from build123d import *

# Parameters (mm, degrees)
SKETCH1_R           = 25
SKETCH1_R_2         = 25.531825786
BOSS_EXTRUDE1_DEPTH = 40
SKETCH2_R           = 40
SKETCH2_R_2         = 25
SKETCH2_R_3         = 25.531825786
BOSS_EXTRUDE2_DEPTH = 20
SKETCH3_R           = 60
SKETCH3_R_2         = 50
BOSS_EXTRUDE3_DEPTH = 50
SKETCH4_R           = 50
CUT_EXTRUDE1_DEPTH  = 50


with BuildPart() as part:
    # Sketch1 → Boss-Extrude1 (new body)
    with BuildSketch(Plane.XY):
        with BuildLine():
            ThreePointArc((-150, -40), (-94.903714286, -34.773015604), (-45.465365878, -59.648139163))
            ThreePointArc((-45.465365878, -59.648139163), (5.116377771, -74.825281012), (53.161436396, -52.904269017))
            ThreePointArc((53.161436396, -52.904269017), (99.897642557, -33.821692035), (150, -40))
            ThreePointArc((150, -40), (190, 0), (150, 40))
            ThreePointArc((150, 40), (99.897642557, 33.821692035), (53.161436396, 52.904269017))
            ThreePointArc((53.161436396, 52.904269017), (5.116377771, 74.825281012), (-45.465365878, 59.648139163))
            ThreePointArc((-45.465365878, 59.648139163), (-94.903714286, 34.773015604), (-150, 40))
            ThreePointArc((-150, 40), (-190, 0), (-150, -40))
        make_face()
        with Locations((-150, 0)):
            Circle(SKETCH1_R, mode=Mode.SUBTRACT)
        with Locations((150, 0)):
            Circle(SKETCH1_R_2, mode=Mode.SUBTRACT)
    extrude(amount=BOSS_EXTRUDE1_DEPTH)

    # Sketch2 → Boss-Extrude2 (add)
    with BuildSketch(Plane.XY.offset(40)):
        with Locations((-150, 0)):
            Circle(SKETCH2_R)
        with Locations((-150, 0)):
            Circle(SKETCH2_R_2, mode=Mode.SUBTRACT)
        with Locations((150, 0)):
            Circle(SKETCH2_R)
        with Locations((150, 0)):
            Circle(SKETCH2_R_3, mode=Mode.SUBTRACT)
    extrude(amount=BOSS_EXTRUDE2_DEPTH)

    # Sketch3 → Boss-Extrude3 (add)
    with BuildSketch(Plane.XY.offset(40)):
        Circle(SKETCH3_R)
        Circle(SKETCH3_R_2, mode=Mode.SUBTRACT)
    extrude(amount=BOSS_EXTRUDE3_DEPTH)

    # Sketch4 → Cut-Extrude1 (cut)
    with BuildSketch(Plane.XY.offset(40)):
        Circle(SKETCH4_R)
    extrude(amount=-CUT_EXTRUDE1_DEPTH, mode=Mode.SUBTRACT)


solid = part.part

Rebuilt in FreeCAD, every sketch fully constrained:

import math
import FreeCAD as App
import Part
import Sketcher

V = App.Vector

doc = App.newDocument("Part")
body = doc.addObject("PartDesign::Body", "Body")

sketch1 = body.newObject("Sketcher::SketchObject", "Sketch")
sketch1.AttachmentSupport = (doc.getObject("XY_Plane"), [""])
sketch1.MapMode = "FlatFace"
sketch1.addGeometry([
    Part.ArcOfCircle(Part.Circle(V(-113.376066, -133.052068, 0), V(0, 0, 1), 100), math.radians(47.2261), math.radians(111.483874)),
    Part.ArcOfCircle(Part.Circle(V(0, 0, 0), V(0, 0, 1), 75), math.radians(-127.315594), math.radians(-44.861081)),
    Part.ArcOfCircle(Part.Circle(V(113.106432, -132.945493, 0), V(0, 0, 1), 100), math.radians(68.350007), math.radians(126.830514)),
    Part.ArcOfCircle(Part.Circle(V(150, 0, 0), V(0, 0, 1), 40), math.radians(-90), math.radians(90)),
    Part.ArcOfCircle(Part.Circle(V(113.106432, 132.945493, 0), V(0, 0, 1), 100), math.radians(-126.830514), math.radians(-68.350007)),
    Part.ArcOfCircle(Part.Circle(V(0, 0, 0), V(0, 0, 1), 75), math.radians(44.861081), math.radians(127.315594)),
    Part.ArcOfCircle(Part.Circle(V(-113.376066, 133.052068, 0), V(0, 0, 1), 100), math.radians(-111.483874), math.radians(-47.2261)),
    Part.ArcOfCircle(Part.Circle(V(-150, 0, 0), V(0, 0, 1), 40), math.radians(90), math.radians(270)),
    Part.Circle(V(-150, 0, 0), V(0, 0, 1), 25),
    Part.Circle(V(150, 0, 0), V(0, 0, 1), 25.531826),
], False)
sketch1.addConstraint([
    Sketcher.Constraint("Coincident", 0, 1, 1, 1),
    Sketcher.Constraint("Coincident", 1, 2, 2, 2),
    Sketcher.Constraint("Coincident", 2, 1, 3, 1),
    Sketcher.Constraint("Coincident", 3, 2, 4, 2),
    Sketcher.Constraint("Coincident", 4, 1, 5, 1),
    Sketcher.Constraint("Coincident", 5, 2, 6, 2),
    Sketcher.Constraint("Coincident", 6, 1, 7, 1),
    Sketcher.Constraint("Coincident", 7, 2, 0, 2),
    Sketcher.Constraint("Coincident", 1, 3, -1, 1),
    Sketcher.Constraint("Coincident", 5, 3, -1, 1),
    Sketcher.Constraint("Coincident", 8, 3, 7, 3),
    Sketcher.Constraint("Coincident", 9, 3, 3, 3),
    Sketcher.Constraint("Equal", 0, 2),
    Sketcher.Constraint("Equal", 2, 4),
    Sketcher.Constraint("Equal", 1, 5),
    Sketcher.Constraint("Equal", 4, 6),
    Sketcher.Constraint("Equal", 3, 7),
    Sketcher.Constraint("Symmetric", 3, 3, 7, 3, -1, 1),
    Sketcher.Constraint("Symmetric", 3, 2, 6, 1, -2),
    Sketcher.Constraint("Symmetric", 2, 3, 4, 3, -1),
    Sketcher.Constraint("Symmetric", 0, 3, 6, 3, -1),
    Sketcher.Constraint("Vertical", 9, 3, 2, 1),
    Sketcher.Constraint("Diameter", 8, 50.0),
    Sketcher.Constraint("Radius", 0, 100.0),
    Sketcher.Constraint("Radius", 1, 75.0),
    Sketcher.Constraint("Radius", 3, 40.0),
    Sketcher.Constraint("DistanceX", -1, 1, 3, 3, 150.0),
    Sketcher.Constraint("Diameter", 9, 51.063652),
    Sketcher.Constraint("DistanceX", 0, 3, 0, 1, 67.9107),
    Sketcher.Constraint("DistanceX", -1, 1, 2, 3, 113.106432),
])
pad1 = body.newObject("PartDesign::Pad", "Pad")
pad1.Profile = sketch1
pad1.Length = 40

sketch2 = body.newObject("Sketcher::SketchObject", "Sketch001")
sketch2.AttachmentSupport = (doc.getObject("XY_Plane"), [""])
sketch2.MapMode = "FlatFace"
sketch2.AttachmentOffset = App.Placement(V(0, 0, 40), App.Rotation())
sketch2.addGeometry([
    Part.Circle(V(-150, 0, 0), V(0, 0, 1), 40),
    Part.Circle(V(-150, 0, 0), V(0, 0, 1), 25),
    Part.Circle(V(150, 0, 0), V(0, 0, 1), 40),
    Part.Circle(V(150, 0, 0), V(0, 0, 1), 25.531826),
], False)
sketch2.addConstraint([
    Sketcher.Constraint("Coincident", 1, 3, 0, 3),
    Sketcher.Constraint("Coincident", 3, 3, 2, 3),
    Sketcher.Constraint("Equal", 0, 2),
    Sketcher.Constraint("Symmetric", 0, 3, 2, 3, -1, 1),
    Sketcher.Constraint("PointOnObject", 0, 3, -1),
    Sketcher.Constraint("Diameter", 0, 80.0),
    Sketcher.Constraint("Diameter", 1, 50.0),
    Sketcher.Constraint("DistanceX", 0, 3, -1, 1, 150.0),
    Sketcher.Constraint("Diameter", 3, 51.063652),
])
pad2 = body.newObject("PartDesign::Pad", "Pad001")
pad2.Profile = sketch2
pad2.Length = 20

sketch3 = body.newObject("Sketcher::SketchObject", "Sketch002")
sketch3.AttachmentSupport = (doc.getObject("XY_Plane"), [""])
sketch3.MapMode = "FlatFace"
sketch3.AttachmentOffset = App.Placement(V(0, 0, 40), App.Rotation())
sketch3.addGeometry([
    Part.Circle(V(0, 0, 0), V(0, 0, 1), 60),
    Part.Circle(V(0, 0, 0), V(0, 0, 1), 50),
], False)
sketch3.addConstraint([
    Sketcher.Constraint("Coincident", 0, 3, -1, 1),
    Sketcher.Constraint("Coincident", 1, 3, -1, 1),
    Sketcher.Constraint("Diameter", 0, 120.0),
    Sketcher.Constraint("Diameter", 1, 100.0),
])
pad3 = body.newObject("PartDesign::Pad", "Pad002")
pad3.Profile = sketch3
pad3.Length = 50

sketch4 = body.newObject("Sketcher::SketchObject", "Sketch003")
sketch4.AttachmentSupport = (doc.getObject("XY_Plane"), [""])
sketch4.MapMode = "FlatFace"
sketch4.AttachmentOffset = App.Placement(V(0, 0, 40), App.Rotation())
sketch4.addGeometry(Part.Circle(V(0, 0, 0), V(0, 0, 1), 50), False)
sketch4.addConstraint([
    Sketcher.Constraint("Coincident", 0, 3, -1, 1),
    Sketcher.Constraint("Diameter", 0, 100.0),
])
pocket1 = body.newObject("PartDesign::Pocket", "Pocket")
pocket1.Profile = sketch4
pocket1.Length = 50

doc.recompute()
